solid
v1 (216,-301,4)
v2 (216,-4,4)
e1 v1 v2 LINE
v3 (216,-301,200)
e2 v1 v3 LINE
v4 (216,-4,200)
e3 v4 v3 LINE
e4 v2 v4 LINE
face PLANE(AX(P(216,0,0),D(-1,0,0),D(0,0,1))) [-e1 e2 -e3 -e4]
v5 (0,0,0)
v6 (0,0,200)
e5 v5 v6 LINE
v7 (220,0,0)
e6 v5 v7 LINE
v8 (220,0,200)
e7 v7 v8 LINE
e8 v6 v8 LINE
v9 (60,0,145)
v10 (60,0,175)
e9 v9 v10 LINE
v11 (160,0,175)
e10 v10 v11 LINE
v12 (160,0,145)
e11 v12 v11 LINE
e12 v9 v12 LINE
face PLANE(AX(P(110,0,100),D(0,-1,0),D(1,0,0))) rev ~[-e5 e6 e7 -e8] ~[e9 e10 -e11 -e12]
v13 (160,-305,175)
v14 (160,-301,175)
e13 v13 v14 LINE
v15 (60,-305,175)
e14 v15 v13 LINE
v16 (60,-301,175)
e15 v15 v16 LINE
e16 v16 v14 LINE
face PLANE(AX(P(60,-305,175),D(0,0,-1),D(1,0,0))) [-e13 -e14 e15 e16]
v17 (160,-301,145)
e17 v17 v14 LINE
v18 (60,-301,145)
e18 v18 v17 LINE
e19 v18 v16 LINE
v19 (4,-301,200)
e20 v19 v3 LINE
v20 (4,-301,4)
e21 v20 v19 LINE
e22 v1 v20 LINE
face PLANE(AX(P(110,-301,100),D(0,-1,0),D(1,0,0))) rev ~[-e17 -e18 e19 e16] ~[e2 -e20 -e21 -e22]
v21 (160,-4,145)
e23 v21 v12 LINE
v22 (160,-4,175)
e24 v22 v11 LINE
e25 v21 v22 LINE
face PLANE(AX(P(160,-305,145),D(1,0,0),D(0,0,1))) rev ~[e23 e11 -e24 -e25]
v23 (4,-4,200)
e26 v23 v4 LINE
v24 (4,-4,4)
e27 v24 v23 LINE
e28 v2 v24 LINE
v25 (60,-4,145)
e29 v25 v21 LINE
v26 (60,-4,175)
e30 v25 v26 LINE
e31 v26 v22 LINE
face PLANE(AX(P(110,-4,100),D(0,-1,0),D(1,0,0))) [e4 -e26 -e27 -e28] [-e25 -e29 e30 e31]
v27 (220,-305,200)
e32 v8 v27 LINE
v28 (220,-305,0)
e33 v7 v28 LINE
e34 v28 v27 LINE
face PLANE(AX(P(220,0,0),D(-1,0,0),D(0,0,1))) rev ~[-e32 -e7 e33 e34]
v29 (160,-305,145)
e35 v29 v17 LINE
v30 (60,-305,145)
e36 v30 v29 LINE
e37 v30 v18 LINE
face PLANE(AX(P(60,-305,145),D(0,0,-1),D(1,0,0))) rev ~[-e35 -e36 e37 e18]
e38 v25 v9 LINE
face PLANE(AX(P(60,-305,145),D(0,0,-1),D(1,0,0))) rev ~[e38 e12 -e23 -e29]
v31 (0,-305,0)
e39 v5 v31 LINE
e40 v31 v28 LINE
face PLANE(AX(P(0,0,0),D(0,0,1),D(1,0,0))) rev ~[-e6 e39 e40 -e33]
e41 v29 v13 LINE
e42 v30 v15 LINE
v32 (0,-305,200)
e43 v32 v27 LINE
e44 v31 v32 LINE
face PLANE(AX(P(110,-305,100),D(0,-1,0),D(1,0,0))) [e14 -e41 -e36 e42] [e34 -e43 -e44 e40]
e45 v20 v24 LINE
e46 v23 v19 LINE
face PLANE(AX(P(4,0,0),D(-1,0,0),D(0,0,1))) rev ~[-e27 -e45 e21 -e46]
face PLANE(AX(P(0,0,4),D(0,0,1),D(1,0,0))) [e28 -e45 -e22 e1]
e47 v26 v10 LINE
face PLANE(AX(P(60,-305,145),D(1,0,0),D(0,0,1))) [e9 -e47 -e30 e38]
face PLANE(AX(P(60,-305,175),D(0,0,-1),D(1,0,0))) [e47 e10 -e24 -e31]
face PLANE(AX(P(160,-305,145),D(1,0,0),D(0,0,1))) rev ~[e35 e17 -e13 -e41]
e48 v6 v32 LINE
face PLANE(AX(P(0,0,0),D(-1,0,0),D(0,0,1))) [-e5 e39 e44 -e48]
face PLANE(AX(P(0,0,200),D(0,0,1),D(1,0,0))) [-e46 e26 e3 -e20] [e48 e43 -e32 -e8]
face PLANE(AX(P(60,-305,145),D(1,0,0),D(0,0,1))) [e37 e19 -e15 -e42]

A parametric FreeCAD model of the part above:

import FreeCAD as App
import Part
import Sketcher
from FreeCAD import Vector


def faces_at(feature, points):
    """Names of the faces that lie closest to the given points."""
    faces = feature.Shape.Faces
    near = lambda p: min(range(len(faces)), key=lambda i: faces[i].distToShape(Part.Vertex(*p))[0])
    return sorted({f"Face{near(p) + 1}" for p in points})


def add_polygon(sketch, points):
    """Adds a closed chain of lines whose ends are joined by coincident constraints."""
    first, n = sketch.GeometryCount, len(points)
    for a, b in zip(points, points[1:] + points[:1]):
        sketch.addGeometry(Part.LineSegment(App.Vector(*a, 0), App.Vector(*b, 0)), False)
    for i in range(n):
        sketch.addConstraint(Sketcher.Constraint("Coincident", first + i, 2, first + (i + 1) % n, 1))

doc = App.newDocument("Part")
body = doc.addObject("PartDesign::Body", "Body")

# Sketch on XZ plane
sketch1 = body.newObject("Sketcher::SketchObject", "Sketch")
sketch1.AttachmentSupport = (doc.getObject("XZ_Plane"), [""])
sketch1.MapMode = "FlatFace"
add_polygon(sketch1, [(0, 200), (0, 0), (220, 0), (220, 200)])  # lines 0-3
sketch1.addConstraint(Sketcher.Constraint("Vertical", 0))
sketch1.addConstraint(Sketcher.Constraint("Horizontal", 1))
sketch1.addConstraint(Sketcher.Constraint("Vertical", 2))
sketch1.addConstraint(Sketcher.Constraint("Horizontal", 3))
sketch1.addConstraint(Sketcher.Constraint("Coincident", 0, 2, -1, 1))
sketch1.addConstraint(Sketcher.Constraint("DistanceX", 1, 1, 1, 2, 220.0))
sketch1.addConstraint(Sketcher.Constraint("DistanceY", 0, 2, 0, 1, 200.0))
pad1 = body.newObject("PartDesign::Pad", "Pad")
pad1.Profile = sketch1
pad1.Length = 305
doc.recompute()

thickness = body.newObject("PartDesign::Thickness", "Thickness")
thickness.Base = (pad1, faces_at(pad1, [(110, -152.5, 200)]))
thickness.Value = 4
thickness.Reversed = True
thickness.Join = "Arc"

# Sketch on XZ plane
sketch2 = body.newObject("Sketcher::SketchObject", "Sketch001")
sketch2.AttachmentSupport = (doc.getObject("XZ_Plane"), [""])
sketch2.MapMode = "FlatFace"
sketch2.AttachmentOffset = App.Placement(Vector(0, 0, 305), App.Rotation())
add_polygon(sketch2, [(60, 175), (60, 145), (160, 145), (160, 175)])  # lines 0-3
sketch2.addConstraint(Sketcher.Constraint("Vertical", 0))
sketch2.addConstraint(Sketcher.Constraint("Horizontal", 1))
sketch2.addConstraint(Sketcher.Constraint("Vertical", 2))
sketch2.addConstraint(Sketcher.Constraint("Horizontal", 3))
sketch2.addConstraint(Sketcher.Constraint("DistanceX", 1, 1, 1, 2, 100.0))
sketch2.addConstraint(Sketcher.Constraint("DistanceY", 0, 2, 0, 1, 30.0))
sketch2.addConstraint(Sketcher.Constraint("DistanceX", -1, 1, 0, 2, 60.0))
sketch2.addConstraint(Sketcher.Constraint("DistanceY", -1, 1, 0, 2, 145.0))
pocket1 = body.newObject("PartDesign::Pocket", "Pocket")
pocket1.Profile = sketch2
pocket1.Type = "ThroughAll"

doc.recompute()
